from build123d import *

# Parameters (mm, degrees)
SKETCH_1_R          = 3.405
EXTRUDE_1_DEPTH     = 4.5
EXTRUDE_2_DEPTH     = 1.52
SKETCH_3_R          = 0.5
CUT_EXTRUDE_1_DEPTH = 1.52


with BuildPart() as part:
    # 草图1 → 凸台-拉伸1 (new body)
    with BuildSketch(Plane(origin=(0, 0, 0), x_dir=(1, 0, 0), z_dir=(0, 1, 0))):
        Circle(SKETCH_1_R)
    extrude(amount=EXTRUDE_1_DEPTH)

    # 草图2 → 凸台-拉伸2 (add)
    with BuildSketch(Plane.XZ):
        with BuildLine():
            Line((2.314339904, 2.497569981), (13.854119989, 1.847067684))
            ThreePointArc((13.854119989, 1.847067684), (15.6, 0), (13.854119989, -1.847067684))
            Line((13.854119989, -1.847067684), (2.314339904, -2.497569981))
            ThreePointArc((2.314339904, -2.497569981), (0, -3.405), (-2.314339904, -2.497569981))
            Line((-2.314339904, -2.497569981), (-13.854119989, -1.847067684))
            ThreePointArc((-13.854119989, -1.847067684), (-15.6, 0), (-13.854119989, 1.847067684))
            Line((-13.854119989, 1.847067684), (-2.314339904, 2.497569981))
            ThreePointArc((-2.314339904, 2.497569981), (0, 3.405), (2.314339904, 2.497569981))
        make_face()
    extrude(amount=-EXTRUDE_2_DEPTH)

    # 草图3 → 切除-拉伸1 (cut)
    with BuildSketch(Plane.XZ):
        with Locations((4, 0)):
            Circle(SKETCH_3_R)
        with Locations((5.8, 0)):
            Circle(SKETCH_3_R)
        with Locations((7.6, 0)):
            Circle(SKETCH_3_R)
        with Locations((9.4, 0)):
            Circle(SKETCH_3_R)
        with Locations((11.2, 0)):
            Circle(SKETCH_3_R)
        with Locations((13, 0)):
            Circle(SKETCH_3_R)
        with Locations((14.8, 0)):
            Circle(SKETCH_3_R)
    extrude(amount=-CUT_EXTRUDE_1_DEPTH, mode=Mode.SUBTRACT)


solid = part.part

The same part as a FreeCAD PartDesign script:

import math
import FreeCAD as App
import Part
import Sketcher

V = App.Vector

doc = App.newDocument("Part")
body = doc.addObject("PartDesign::Body", "Body")

sketch1 = body.newObject("Sketcher::SketchObject", "Sketch")
sketch1.AttachmentSupport = (doc.getObject("XZ_Plane"), [""])
sketch1.MapMode = "FlatFace"
sketch1.addGeometry(Part.Circle(V(0, 0, 0), V(0, 0, 1), 3.4), False)
sketch1.addConstraint([
    Sketcher.Constraint("Coincident", 0, 3, -1, 1),
    Sketcher.Constraint("Diameter", 0, 6.81),
])
pad1 = body.newObject("PartDesign::Pad", "Pad")
pad1.Profile = sketch1
pad1.Length = 4.5
pad1.Reversed = True

sketch2 = body.newObject("Sketcher::SketchObject", "Sketch001")
sketch2.AttachmentSupport = (doc.getObject("XZ_Plane"), [""])
sketch2.MapMode = "FlatFace"
sketch2.addGeometry([
    Part.LineSegment(V(13.9, 1.8, 0), V(2.3, 2.5, 0)),
    Part.ArcOfCircle(Part.Circle(V(0, 0, 0), V(0, 0, 1), 3.4), math.radians(47), math.radians(133)),
    Part.LineSegment(V(-2.3, 2.5, 0), V(-13.9, 1.8, 0)),
    Part.ArcOfCircle(Part.Circle(V(-13.8, 0, 0), V(0, 0, 1), 1.9), math.radians(93), math.radians(267)),
    Part.LineSegment(V(-13.9, -1.8, 0), V(-2.3, -2.5, 0)),
    Part.ArcOfCircle(Part.Circle(V(0, 0, 0), V(0, 0, 1), 3.4), math.radians(-133), math.radians(-47)),
    Part.LineSegment(V(2.3, -2.5, 0), V(13.9, -1.8, 0)),
    Part.ArcOfCircle(Part.Circle(V(13.8, 0, 0), V(0, 0, 1), 1.9), math.radians(-87), math.radians(87)),
], False)
sketch2.addConstraint([
    Sketcher.Constraint("Coincident", 0, 2, 1, 1),
    Sketcher.Constraint("Coincident", 1, 2, 2, 1),
    Sketcher.Constraint("Tangent", 2, 2, 3, 1),
    Sketcher.Constraint("Tangent", 3, 2, 4, 1),
    Sketcher.Constraint("Coincident", 4, 2, 5, 1),
    Sketcher.Constraint("Coincident", 5, 2, 6, 1),
    Sketcher.Constraint("Tangent", 6, 2, 7, 1),
    Sketcher.Constraint("Tangent", 7, 2, 0, 1),
    Sketcher.Constraint("Coincident", 1, 3, -1, 1),
    Sketcher.Constraint("Coincident", 5, 3, -1, 1),
    Sketcher.Constraint("Equal", 1, 5),
    Sketcher.Constraint("Equal", 3, 7),
    Sketcher.Constraint("Symmetric", 3, 3, 7, 3, -1, 1),
    Sketcher.Constraint("Symmetric", 3, 2, 6, 2, -2),
    Sketcher.Constraint("Parallel", 0, 4),
    Sketcher.Constraint("Parallel", 2, 6),
    Sketcher.Constraint("Radius", 3, 1.85),
    Sketcher.Constraint("Radius", 1, 3.405),
    Sketcher.Constraint("DistanceX", 3, 3, 7, 3, 27.5),
    Sketcher.Constraint("Distance", 0, 11.5581),
])
pad2 = body.newObject("PartDesign::Pad", "Pad001")
pad2.Profile = sketch2
pad2.Length = 1.52
pad2.Reversed = True

sketch3 = body.newObject("Sketcher::SketchObject", "Sketch002")
sketch3.AttachmentSupport = (doc.getObject("XZ_Plane"), [""])
sketch3.MapMode = "FlatFace"
sketch3.addGeometry([
    Part.Circle(V(4, 0, 0), V(0, 0, 1), 0.5),
    Part.Circle(V(5.8, 0, 0), V(0, 0, 1), 0.5),
    Part.Circle(V(7.6, 0, 0), V(0, 0, 1), 0.5),
    Part.Circle(V(9.4, 0, 0), V(0, 0, 1), 0.5),
    Part.Circle(V(11.2, 0, 0), V(0, 0, 1), 0.5),
    Part.Circle(V(13, 0, 0), V(0, 0, 1), 0.5),
    Part.Circle(V(14.8, 0, 0), V(0, 0, 1), 0.5),
], False)
sketch3.addConstraint([
    Sketcher.Constraint("Equal", 0, 1),
    Sketcher.Constraint("Equal", 1, 2),
    Sketcher.Constraint("Equal", 2, 3),
    Sketcher.Constraint("Equal", 3, 4),
    Sketcher.Constraint("Equal", 4, 5),
    Sketcher.Constraint("Equal", 5, 6),
    Sketcher.Constraint("PointOnObject", 0, 3, -1),
    Sketcher.Constraint("PointOnObject", 1, 3, -1),
    Sketcher.Constraint("PointOnObject", 2, 3, -1),
    Sketcher.Constraint("PointOnObject", 3, 3, -1),
    Sketcher.Constraint("PointOnObject", 4, 3, -1),
    Sketcher.Constraint("PointOnObject", 5, 3, -1),
    Sketcher.Constraint("PointOnObject", 6, 3, -1),
    Sketcher.Constraint("Diameter", 0, 1.0),
    Sketcher.Constraint("DistanceX", -1, 1, 0, 3, 4.0),
    Sketcher.Constraint("DistanceX", -1, 1, 5, 3, 13.0),
    Sketcher.Constraint("DistanceX", 1, 3, 6, 3, 9.0),
    Sketcher.Constraint("DistanceX", -1, 1, 1, 3, 5.8),
    Sketcher.Constraint("DistanceX", -1, 1, 2, 3, 7.6),
    Sketcher.Constraint("DistanceX", -1, 1, 3, 3, 9.4),
    Sketcher.Constraint("DistanceX", -1, 1, 4, 3, 11.2),
])
pocket1 = body.newObject("PartDesign::Pocket", "Pocket")
pocket1.Profile = sketch3
pocket1.Length = 1.52

doc.recompute()
